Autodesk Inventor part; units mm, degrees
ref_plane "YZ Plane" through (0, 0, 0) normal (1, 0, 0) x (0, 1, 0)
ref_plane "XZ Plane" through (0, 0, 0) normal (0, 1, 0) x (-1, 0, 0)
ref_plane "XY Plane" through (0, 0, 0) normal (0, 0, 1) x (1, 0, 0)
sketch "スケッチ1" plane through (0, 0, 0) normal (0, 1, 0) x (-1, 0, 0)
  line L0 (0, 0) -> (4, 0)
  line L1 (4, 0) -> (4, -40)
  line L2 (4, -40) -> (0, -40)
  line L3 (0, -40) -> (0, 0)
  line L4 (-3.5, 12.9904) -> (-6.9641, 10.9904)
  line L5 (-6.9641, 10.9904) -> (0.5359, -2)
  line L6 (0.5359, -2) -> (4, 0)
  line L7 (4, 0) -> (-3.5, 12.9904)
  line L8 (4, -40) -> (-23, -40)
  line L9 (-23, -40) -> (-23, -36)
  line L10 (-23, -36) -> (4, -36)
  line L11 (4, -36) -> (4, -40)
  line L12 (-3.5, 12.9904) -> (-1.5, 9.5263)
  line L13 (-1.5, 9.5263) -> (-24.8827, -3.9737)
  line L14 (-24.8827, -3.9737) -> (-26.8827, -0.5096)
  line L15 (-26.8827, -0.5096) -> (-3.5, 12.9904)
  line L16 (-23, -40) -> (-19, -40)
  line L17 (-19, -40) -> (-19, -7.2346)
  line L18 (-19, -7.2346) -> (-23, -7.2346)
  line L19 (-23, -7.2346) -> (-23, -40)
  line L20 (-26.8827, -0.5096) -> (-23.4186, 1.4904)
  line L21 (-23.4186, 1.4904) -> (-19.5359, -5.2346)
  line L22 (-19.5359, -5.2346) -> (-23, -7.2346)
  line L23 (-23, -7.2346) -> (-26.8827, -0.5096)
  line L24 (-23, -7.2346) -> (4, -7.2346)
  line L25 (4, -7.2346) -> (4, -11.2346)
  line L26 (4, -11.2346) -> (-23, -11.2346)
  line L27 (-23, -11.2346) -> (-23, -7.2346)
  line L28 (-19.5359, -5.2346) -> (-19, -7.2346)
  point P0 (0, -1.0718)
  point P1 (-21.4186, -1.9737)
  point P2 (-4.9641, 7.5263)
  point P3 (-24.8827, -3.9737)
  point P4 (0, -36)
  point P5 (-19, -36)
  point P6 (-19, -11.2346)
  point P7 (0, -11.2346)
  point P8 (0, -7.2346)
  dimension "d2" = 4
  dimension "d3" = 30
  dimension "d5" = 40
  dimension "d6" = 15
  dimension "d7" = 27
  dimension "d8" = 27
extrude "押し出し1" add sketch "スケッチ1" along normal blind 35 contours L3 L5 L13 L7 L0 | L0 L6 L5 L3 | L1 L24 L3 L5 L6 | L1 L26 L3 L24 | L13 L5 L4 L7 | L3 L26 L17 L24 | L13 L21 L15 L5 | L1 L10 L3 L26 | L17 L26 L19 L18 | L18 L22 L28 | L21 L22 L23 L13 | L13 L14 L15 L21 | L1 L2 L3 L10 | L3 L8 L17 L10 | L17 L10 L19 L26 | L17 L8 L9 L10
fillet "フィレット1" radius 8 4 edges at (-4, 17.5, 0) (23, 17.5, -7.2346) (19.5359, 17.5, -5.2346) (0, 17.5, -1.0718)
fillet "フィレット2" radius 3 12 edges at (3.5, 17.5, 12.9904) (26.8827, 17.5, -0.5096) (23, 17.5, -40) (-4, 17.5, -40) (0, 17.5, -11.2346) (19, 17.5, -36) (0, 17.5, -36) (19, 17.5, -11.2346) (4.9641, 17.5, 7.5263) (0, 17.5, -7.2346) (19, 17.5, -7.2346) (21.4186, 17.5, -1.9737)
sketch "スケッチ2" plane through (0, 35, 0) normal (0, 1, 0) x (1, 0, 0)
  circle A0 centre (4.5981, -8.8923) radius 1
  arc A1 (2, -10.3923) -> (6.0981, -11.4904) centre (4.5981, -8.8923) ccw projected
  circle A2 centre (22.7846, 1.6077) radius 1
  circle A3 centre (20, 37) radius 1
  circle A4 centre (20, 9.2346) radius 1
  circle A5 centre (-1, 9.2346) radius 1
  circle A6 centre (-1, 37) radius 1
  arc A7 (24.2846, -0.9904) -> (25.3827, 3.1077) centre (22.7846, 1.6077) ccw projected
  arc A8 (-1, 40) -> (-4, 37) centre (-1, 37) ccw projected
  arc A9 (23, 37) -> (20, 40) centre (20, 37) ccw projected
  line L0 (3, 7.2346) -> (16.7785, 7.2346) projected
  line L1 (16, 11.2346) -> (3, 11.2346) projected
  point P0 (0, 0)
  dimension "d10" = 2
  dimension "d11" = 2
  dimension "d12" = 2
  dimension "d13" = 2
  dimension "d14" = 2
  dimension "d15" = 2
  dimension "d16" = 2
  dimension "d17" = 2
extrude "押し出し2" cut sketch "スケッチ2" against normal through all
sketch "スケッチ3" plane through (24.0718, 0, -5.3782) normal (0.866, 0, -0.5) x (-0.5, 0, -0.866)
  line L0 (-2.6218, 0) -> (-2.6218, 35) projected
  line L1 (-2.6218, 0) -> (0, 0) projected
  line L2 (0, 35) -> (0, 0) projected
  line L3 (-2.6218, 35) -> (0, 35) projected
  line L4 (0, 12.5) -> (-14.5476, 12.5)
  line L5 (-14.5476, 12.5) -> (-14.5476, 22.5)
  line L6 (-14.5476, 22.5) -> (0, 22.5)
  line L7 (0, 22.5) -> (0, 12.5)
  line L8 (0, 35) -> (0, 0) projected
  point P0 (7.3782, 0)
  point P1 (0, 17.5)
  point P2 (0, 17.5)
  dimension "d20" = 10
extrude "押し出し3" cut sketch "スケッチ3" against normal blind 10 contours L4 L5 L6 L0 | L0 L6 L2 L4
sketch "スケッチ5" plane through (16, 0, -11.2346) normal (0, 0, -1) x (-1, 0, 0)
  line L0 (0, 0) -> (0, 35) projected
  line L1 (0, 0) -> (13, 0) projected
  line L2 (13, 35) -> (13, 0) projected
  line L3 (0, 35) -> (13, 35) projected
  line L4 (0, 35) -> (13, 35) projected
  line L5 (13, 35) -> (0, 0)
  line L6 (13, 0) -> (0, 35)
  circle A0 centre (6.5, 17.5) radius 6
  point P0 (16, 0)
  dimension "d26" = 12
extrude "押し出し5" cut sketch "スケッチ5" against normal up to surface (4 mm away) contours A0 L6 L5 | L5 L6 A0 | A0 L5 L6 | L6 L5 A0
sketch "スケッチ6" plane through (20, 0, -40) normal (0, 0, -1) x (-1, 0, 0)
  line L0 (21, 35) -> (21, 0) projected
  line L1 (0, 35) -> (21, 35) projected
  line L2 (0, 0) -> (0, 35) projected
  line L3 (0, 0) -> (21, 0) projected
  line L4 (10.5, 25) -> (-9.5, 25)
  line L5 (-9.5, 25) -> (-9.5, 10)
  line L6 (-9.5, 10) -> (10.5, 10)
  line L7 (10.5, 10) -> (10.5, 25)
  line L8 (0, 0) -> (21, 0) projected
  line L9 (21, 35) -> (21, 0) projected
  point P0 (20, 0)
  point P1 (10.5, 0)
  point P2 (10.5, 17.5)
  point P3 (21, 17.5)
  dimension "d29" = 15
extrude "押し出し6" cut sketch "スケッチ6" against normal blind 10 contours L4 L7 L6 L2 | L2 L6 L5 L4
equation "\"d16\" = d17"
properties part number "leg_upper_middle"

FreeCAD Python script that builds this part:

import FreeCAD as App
import Part
import Sketcher

V = App.Vector
Q = App.Units.Quantity


def edges_at(feature, points):
    """Names of the edges that pass closest to the given points."""
    edges = feature.Shape.Edges
    near = lambda p: min(range(len(edges)), key=lambda i: edges[i].distToShape(Part.Vertex(*p))[0])
    return sorted({f"Edge{near(p) + 1}" for p in points})

doc = App.newDocument("Part")
params = doc.addObject("Spreadsheet::Sheet", "Params")
for row, (alias, value) in enumerate([
    ("sketch1_width", "27 mm"),
    ("sketch1_height", "40 mm"),
    ("sketch1_length", "15 mm"),
    ("sketch1_length2", "4 mm"),
    ("sketch1_length3", "23 mm"),
    ("pad1_length", "35 mm"),
    ("fillet_radius", "8 mm"),
    ("fillet2_radius", "3 mm"),
    ("sketch2_diameter", "2 mm"),
    ("sketch3_height", "10 mm"),
    ("pocket2_length", "10 mm"),
    ("sketch4_diameter", "12 mm"),
    ("pocket3_length", "4 mm"),
    ("sketch5_height", "15 mm"),
    ("sketch5_width", "20 mm"),
    ("pocket4_length", "10 mm"),
], start=1):
    params.set(f"A{row}", alias)
    params.set(f"B{row}", "=" + value)
    params.setAlias(f"B{row}", alias)

body = doc.addObject("PartDesign::Body", "Body")

# Sketch on XZ plane
sketch1 = doc.addObject("Sketcher::SketchObject", "Sketch")
body.addObject(sketch1)
sketch1.AttachmentSupport = (doc.XZ_Plane, [""])
sketch1.MapMode = "FlatFace"
sketch1.addGeometry(Part.LineSegment(V(-4, 0, 0), V(3.5, 13, 0)), False)
sketch1.addGeometry(Part.LineSegment(V(3.5, 13, 0), V(7, 11, 0)), False)
sketch1.addGeometry(Part.LineSegment(V(7, 11, 0), V(26.9, -0.5, 0)), False)
sketch1.addGeometry(Part.LineSegment(V(26.9, -0.5, 0), V(24.9, -4, 0)), False)
sketch1.addGeometry(Part.LineSegment(V(24.9, -4, 0), V(23, -7.2, 0)), False)
sketch1.addGeometry(Part.LineSegment(V(23, -7.2, 0), V(23, -40, 0)), False)
sketch1.addGeometry(Part.LineSegment(V(23, -40, 0), V(-4, -40, 0)), False)
sketch1.addGeometry(Part.LineSegment(V(-4, -40, 0), V(-4, 0, 0)), False)
sketch1.addGeometry(Part.LineSegment(V(5, 7.5, 0), V(0, -1.1, 0)), False)
sketch1.addGeometry(Part.LineSegment(V(0, -1.1, 0), V(0, -7.2, 0)), False)
sketch1.addGeometry(Part.LineSegment(V(0, -7.2, 0), V(19, -7.2, 0)), False)
sketch1.addGeometry(Part.LineSegment(V(19, -7.2, 0), V(19.5, -5.2, 0)), False)
sketch1.addGeometry(Part.LineSegment(V(19.5, -5.2, 0), V(21.4, -2, 0)), False)
sketch1.addGeometry(Part.LineSegment(V(21.4, -2, 0), V(5, 7.5, 0)), False)
sketch1.addGeometry(Part.LineSegment(V(0, -11.2, 0), V(0, -36, 0)), False)
sketch1.addGeometry(Part.LineSegment(V(0, -36, 0), V(19, -36, 0)), False)
sketch1.addGeometry(Part.LineSegment(V(19, -36, 0), V(19, -11.2, 0)), False)
sketch1.addGeometry(Part.LineSegment(V(19, -11.2, 0), V(0, -11.2, 0)), False)
sketch1.addConstraint(Sketcher.Constraint("Coincident", 0, 2, 1, 1))
sketch1.addConstraint(Sketcher.Constraint("Coincident", 1, 2, 2, 1))
sketch1.addConstraint(Sketcher.Constraint("Coincident", 2, 2, 3, 1))
sketch1.addConstraint(Sketcher.Constraint("Coincident", 3, 2, 4, 1))
sketch1.addConstraint(Sketcher.Constraint("Coincident", 4, 2, 5, 1))
sketch1.addConstraint(Sketcher.Constraint("Coincident", 5, 2, 6, 1))
sketch1.addConstraint(Sketcher.Constraint("Coincident", 6, 2, 7, 1))
sketch1.addConstraint(Sketcher.Constraint("Coincident", 7, 2, 0, 1))
sketch1.addConstraint(Sketcher.Constraint("Coincident", 8, 2, 9, 1))
sketch1.addConstraint(Sketcher.Constraint("Coincident", 9, 2, 10, 1))
sketch1.addConstraint(Sketcher.Constraint("Coincident", 10, 2, 11, 1))
sketch1.addConstraint(Sketcher.Constraint("Coincident", 11, 2, 12, 1))
sketch1.addConstraint(Sketcher.Constraint("Coincident", 12, 2, 13, 1))
sketch1.addConstraint(Sketcher.Constraint("Coincident", 13, 2, 8, 1))
sketch1.addConstraint(Sketcher.Constraint("Coincident", 14, 2, 15, 1))
sketch1.addConstraint(Sketcher.Constraint("Coincident", 15, 2, 16, 1))
sketch1.addConstraint(Sketcher.Constraint("Coincident", 16, 2, 17, 1))
sketch1.addConstraint(Sketcher.Constraint("Coincident", 17, 2, 14, 1))
sketch1.addConstraint(Sketcher.Constraint("Vertical", 5))
sketch1.addConstraint(Sketcher.Constraint("Horizontal", 6))
sketch1.addConstraint(Sketcher.Constraint("Vertical", 7))
sketch1.addConstraint(Sketcher.Constraint("Vertical", 9))
sketch1.addConstraint(Sketcher.Constraint("Horizontal", 10))
sketch1.addConstraint(Sketcher.Constraint("Vertical", 14))
sketch1.addConstraint(Sketcher.Constraint("Horizontal", 15))
sketch1.addConstraint(Sketcher.Constraint("Vertical", 16))
sketch1.addConstraint(Sketcher.Constraint("Horizontal", 17))
sketch1.addConstraint(Sketcher.Constraint("PointOnObject", 7, 2, -1))
sketch1.addConstraint(Sketcher.Constraint("PointOnObject", 8, 2, -2))
sketch1.addConstraint(Sketcher.Constraint("PointOnObject", 14, 2, -2))
sketch1.addConstraint(Sketcher.Constraint("Perpendicular", 0, 1))
sketch1.addConstraint(Sketcher.Constraint("Parallel", 1, 2))
sketch1.addConstraint(Sketcher.Constraint("Perpendicular", 2, 3))
sketch1.addConstraint(Sketcher.Constraint("Parallel", 3, 4))
sketch1.addConstraint(Sketcher.Constraint("Parallel", 4, 8))
sketch1.addConstraint(Sketcher.Constraint("Parallel", 8, 12))
sketch1.addConstraint(Sketcher.Constraint("Perpendicular", 12, 13))
sketch1.addConstraint(Sketcher.Constraint("Horizontal", 4, 2, 9, 2))
sketch1.addConstraint(Sketcher.Constraint("Vertical", 10, 2, 15, 2))
sketch1.addConstraint(Sketcher.Constraint("Equal", 1, 3))
sketch1.addConstraint(Sketcher.Constraint("Equal", 4, 12))
sketch1.addConstraint(Sketcher.Constraint("DistanceX", 6, 2, 6, 1, 27.0))
sketch1.addConstraint(Sketcher.Constraint("DistanceY", 7, 1, 7, 2, 40.0))
sketch1.addConstraint(Sketcher.Constraint("Angle", 1, Q("-30 deg")))
sketch1.addConstraint(Sketcher.Constraint("Distance", 0, 15.0))
sketch1.addConstraint(Sketcher.Constraint("Distance", 1, 4.0))
sketch1.addConstraint(Sketcher.Constraint("DistanceX", 6, 2, -1, 1, 4.0))
sketch1.addConstraint(Sketcher.Constraint("DistanceX", 10, 2, 4, 2, 4.0))
sketch1.addConstraint(Sketcher.Constraint("DistanceY", 6, 2, 14, 2, 4.0))
sketch1.addConstraint(Sketcher.Constraint("DistanceY", 16, 2, 10, 2, 4.0))
sketch1.addConstraint(Sketcher.Constraint("Angle", 11, Q("75 deg")))
sketch1.addConstraint(Sketcher.Constraint("Distance", 2, 23.0))
sketch1.addConstraint(Sketcher.Constraint("Distance", 13, 19.0))
sketch1.addConstraint(Sketcher.Constraint("DistanceY", 10, 2, 11, 2, 2.0))
sketch1.setExpression("Constraints[41]", "Params.sketch1_width")
sketch1.setExpression("Constraints[42]", "Params.sketch1_height")
sketch1.setExpression("Constraints[44]", "Params.sketch1_length")
sketch1.setExpression("Constraints[45]", "Params.sketch1_length2")
sketch1.setExpression("Constraints[51]", "Params.sketch1_length3")
pad1 = doc.addObject("PartDesign::Pad", "Pad")
body.addObject(pad1)
pad1.Profile = sketch1
pad1.setExpression("Length", "Params.pad1_length")
pad1.Reversed = True
doc.recompute()

fillet = doc.addObject("PartDesign::Fillet", "Fillet")
body.addObject(fillet)
fillet.Base = (pad1, edges_at(pad1, [
    (-4, 17.5, 0),
    (23, 17.5, -7.235),
    (19.536, 17.5, -5.235),
    (0, 17.5, -1.072),
]))
fillet.setExpression("Radius", "Params.fillet_radius")
doc.recompute()

fillet2 = doc.addObject("PartDesign::Fillet", "Fillet001")
body.addObject(fillet2)
fillet2.Base = (fillet, edges_at(fillet, [
    (3.5, 17.5, 12.99),
    (26.883, 17.5, -0.51),
    (23, 17.5, -40),
    (-4, 17.5, -40),
    (0, 17.5, -11.235),
    (19, 17.5, -36),
    (0, 17.5, -36),
    (19, 17.5, -11.235),
    (4.964, 17.5, 7.526),
    (0, 17.5, -7.235),
    (19, 17.5, -7.235),
    (21.419, 17.5, -1.974),
]))
fillet2.setExpression("Radius", "Params.fillet2_radius")

# Sketch on XZ plane
sketch2 = doc.addObject("Sketcher::SketchObject", "Sketch001")
body.addObject(sketch2)
sketch2.AttachmentSupport = (doc.XZ_Plane, [""])
sketch2.MapMode = "FlatFace"
sketch2.AttachmentOffset = App.Placement(V(0, 0, -35), App.Rotation())
sketch2.addGeometry(Part.Circle(V(4.6, 8.9, 0), V(0, 0, 1), 1), False)
sketch2.addGeometry(Part.Circle(V(22.8, -1.6, 0), V(0, 0, 1), 1), False)
sketch2.addGeometry(Part.Circle(V(20, -37, 0), V(0, 0, 1), 1), False)
sketch2.addGeometry(Part.Circle(V(20, -9.2, 0), V(0, 0, 1), 1), False)
sketch2.addGeometry(Part.Circle(V(-1, -9.2, 0), V(0, 0, 1), 1), False)
sketch2.addGeometry(Part.Circle(V(-1, -37, 0), V(0, 0, 1), 1), False)
sketch2.addConstraint(Sketcher.Constraint("Equal", 0, 1))
sketch2.addConstraint(Sketcher.Constraint("Equal", 1, 2))
sketch2.addConstraint(Sketcher.Constraint("Equal", 2, 3))
sketch2.addConstraint(Sketcher.Constraint("Equal", 3, 4))
sketch2.addConstraint(Sketcher.Constraint("Equal", 4, 5))
sketch2.addConstraint(Sketcher.Constraint("Horizontal", 3, 3, 4, 3))
sketch2.addConstraint(Sketcher.Constraint("Horizontal", 2, 3, 5, 3))
sketch2.addConstraint(Sketcher.Constraint("Vertical", 2, 3, 3, 3))
sketch2.addConstraint(Sketcher.Constraint("Vertical", 4, 3, 5, 3))
sketch2.addConstraint(Sketcher.Constraint("Diameter", 0, 2.0))
sketch2.addConstraint(Sketcher.Constraint("DistanceX", -1, 1, 2, 3, 20.0))
sketch2.addConstraint(Sketcher.Constraint("DistanceY", 2, 3, -1, 1, 37.0))
sketch2.addConstraint(Sketcher.Constraint("DistanceX", 4, 3, -1, 1, 1.0))
sketch2.addConstraint(Sketcher.Constraint("DistanceY", 1, 3, 0, 3, 10.5))
sketch2.addConstraint(Sketcher.Constraint("DistanceX", -1, 1, 0, 3, 4.598))
sketch2.addConstraint(Sketcher.Constraint("DistanceY", 3, 3, 1, 3, 7.627))
sketch2.addConstraint(Sketcher.Constraint("DistanceY", -1, 1, 0, 3, 8.8923))
sketch2.addConstraint(Sketcher.Constraint("DistanceX", -1, 1, 1, 3, 22.7846))
sketch2.setExpression("Constraints[9]", "Params.sketch2_diameter")
pocket1 = doc.addObject("PartDesign::Pocket", "Pocket")
body.addObject(pocket1)
pocket1.Profile = sketch2
pocket1.Type = "ThroughAll"
pocket1.Reversed = True

# Sketch on an angled plane
sketch3 = doc.addObject("Sketcher::SketchObject", "Sketch002")
body.addObject(sketch3)
sketch3.Placement = App.Placement(V(24.0718, 0, -5.3782), App.Rotation(V(-0.5, 0, -0.866025404), V(0, 1, 0), V(0.866025404, 0, -0.5), "ZXY"))
sketch3.addGeometry(Part.LineSegment(V(-15, 13, 0), V(0, 13, 0)), False)
sketch3.addGeometry(Part.LineSegment(V(0, 13, 0), V(0, 23, 0)), False)
sketch3.addGeometry(Part.LineSegment(V(0, 23, 0), V(-15, 23, 0)), False)
sketch3.addGeometry(Part.LineSegment(V(-15, 23, 0), V(-15, 13, 0)), False)
sketch3.addConstraint(Sketcher.Constraint("Coincident", 0, 2, 1, 1))
sketch3.addConstraint(Sketcher.Constraint("Coincident", 1, 2, 2, 1))
sketch3.addConstraint(Sketcher.Constraint("Coincident", 2, 2, 3, 1))
sketch3.addConstraint(Sketcher.Constraint("Coincident", 3, 2, 0, 1))
sketch3.addConstraint(Sketcher.Constraint("Horizontal", 0))
sketch3.addConstraint(Sketcher.Constraint("Vertical", 1))
sketch3.addConstraint(Sketcher.Constraint("Horizontal", 2))
sketch3.addConstraint(Sketcher.Constraint("Vertical", 3))
sketch3.addConstraint(Sketcher.Constraint("PointOnObject", 0, 2, -2))
sketch3.addConstraint(Sketcher.Constraint("DistanceY", 1, 1, 1, 2, 10.0))
sketch3.addConstraint(Sketcher.Constraint("DistanceY", -1, 1, 0, 2, 12.5))
sketch3.addConstraint(Sketcher.Constraint("DistanceX", 0, 1, 0, 2, 14.5476))
sketch3.setExpression("Constraints[9]", "Params.sketch3_height")
pocket2 = doc.addObject("PartDesign::Pocket", "Pocket001")
body.addObject(pocket2)
pocket2.Profile = sketch3
pocket2.setExpression("Length", "Params.pocket2_length")

# Sketch on XY plane
sketch4 = doc.addObject("Sketcher::SketchObject", "Sketch003")
body.addObject(sketch4)
sketch4.AttachmentSupport = (doc.XY_Plane, [""])
sketch4.MapMode = "FlatFace"
sketch4.AttachmentOffset = App.Placement(V(0, 0, -11.2346), App.Rotation())
sketch4.addGeometry(Part.Circle(V(10, 18, 0), V(0, 0, 1), 6), False)
sketch4.addConstraint(Sketcher.Constraint("Diameter", 0, 12.0))
sketch4.addConstraint(Sketcher.Constraint("DistanceX", -1, 1, 0, 3, 9.5))
sketch4.addConstraint(Sketcher.Constraint("DistanceY", -1, 1, 0, 3, 17.5))
sketch4.setExpression("Constraints[0]", "Params.sketch4_diameter")
pocket3 = doc.addObject("PartDesign::Pocket", "Pocket002")
body.addObject(pocket3)
pocket3.Profile = sketch4
pocket3.setExpression("Length", "Params.pocket3_length")
pocket3.Reversed = True

# Sketch on XY plane
sketch5 = doc.addObject("Sketcher::SketchObject", "Sketch004")
body.addObject(sketch5)
sketch5.AttachmentSupport = (doc.XY_Plane, [""])
sketch5.MapMode = "FlatFace"
sketch5.AttachmentOffset = App.Placement(V(0, 0, -40), App.Rotation())
sketch5.addGeometry(Part.LineSegment(V(10, 25, 0), V(30, 25, 0)), False)
sketch5.addGeometry(Part.LineSegment(V(30, 25, 0), V(30, 10, 0)), False)
sketch5.addGeometry(Part.LineSegment(V(30, 10, 0), V(10, 10, 0)), False)
sketch5.addGeometry(Part.LineSegment(V(10, 10, 0), V(10, 25, 0)), False)
sketch5.addConstraint(Sketcher.Constraint("Coincident", 0, 2, 1, 1))
sketch5.addConstraint(Sketcher.Constraint("Coincident", 1, 2, 2, 1))
sketch5.addConstraint(Sketcher.Constraint("Coincident", 2, 2, 3, 1))
sketch5.addConstraint(Sketcher.Constraint("Coincident", 3, 2, 0, 1))
sketch5.addConstraint(Sketcher.Constraint("Horizontal", 0))
sketch5.addConstraint(Sketcher.Constraint("Vertical", 1))
sketch5.addConstraint(Sketcher.Constraint("Horizontal", 2))
sketch5.addConstraint(Sketcher.Constraint("Vertical", 3))
sketch5.addConstraint(Sketcher.Constraint("DistanceY", 1, 2, 1, 1, 15.0))
sketch5.addConstraint(Sketcher.Constraint("DistanceX", 0, 1, 0, 2, 20.0))
sketch5.addConstraint(Sketcher.Constraint("DistanceY", -1, 1, 0, 2, 25.0))
sketch5.addConstraint(Sketcher.Constraint("DistanceX", -1, 1, 0, 2, 29.5))
sketch5.setExpression("Constraints[8]", "Params.sketch5_height")
sketch5.setExpression("Constraints[9]", "Params.sketch5_width")
pocket4 = doc.addObject("PartDesign::Pocket", "Pocket003")
body.addObject(pocket4)
pocket4.Profile = sketch5
pocket4.setExpression("Length", "Params.pocket4_length")
pocket4.Reversed = True

doc.recompute()
